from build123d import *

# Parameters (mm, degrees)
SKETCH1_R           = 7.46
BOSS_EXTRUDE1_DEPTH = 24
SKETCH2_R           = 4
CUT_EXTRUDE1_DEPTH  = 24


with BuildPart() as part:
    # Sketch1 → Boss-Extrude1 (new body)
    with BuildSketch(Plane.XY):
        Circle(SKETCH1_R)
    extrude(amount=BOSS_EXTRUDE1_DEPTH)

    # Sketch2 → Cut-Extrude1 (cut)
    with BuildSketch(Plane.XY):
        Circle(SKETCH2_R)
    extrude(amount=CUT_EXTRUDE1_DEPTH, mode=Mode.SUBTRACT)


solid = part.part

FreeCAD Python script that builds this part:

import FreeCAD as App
import Part
import Sketcher

doc = App.newDocument("Part")
params = doc.addObject("Spreadsheet::Sheet", "Params")
for row, (alias, value) in enumerate([
    ("sketch1_diameter", "14.92 mm"),
    ("pad1_length", "24 mm"),
    ("sketch2_diameter", "8 mm"),
    ("pocket1_length", "24 mm"),
], start=1):
    params.set(f"A{row}", alias)
    params.set(f"B{row}", "=" + value)
    params.setAlias(f"B{row}", alias)

body = doc.addObject("PartDesign::Body", "Body")

# Sketch on XY plane
sketch1 = body.newObject("Sketcher::SketchObject", "Sketch")
sketch1.AttachmentSupport = (doc.getObject("XY_Plane"), [""])
sketch1.MapMode = "FlatFace"
sketch1.addGeometry(Part.Circle(App.Vector(0, 0, 0), App.Vector(0, 0, 1), 7), False)
sketch1.addConstraint([
    Sketcher.Constraint("Coincident", 0, 3, -1, 1),
    Sketcher.Constraint("Diameter", 0, 14.92),
])
sketch1.setExpression("Constraints[1]", "Params.sketch1_diameter")
pad1 = body.newObject("PartDesign::Pad", "Pad")
pad1.Profile = sketch1
pad1.setExpression("Length", "Params.pad1_length")

# Sketch on XY plane
sketch2 = body.newObject("Sketcher::SketchObject", "Sketch001")
sketch2.AttachmentSupport = (doc.getObject("XY_Plane"), [""])
sketch2.MapMode = "FlatFace"
sketch2.addGeometry(Part.Circle(App.Vector(0, 0, 0), App.Vector(0, 0, 1), 4), False)
sketch2.addConstraint([
    Sketcher.Constraint("Coincident", 0, 3, -1, 1),
    Sketcher.Constraint("Diameter", 0, 8.0),
])
sketch2.setExpression("Constraints[1]", "Params.sketch2_diameter")
pocket1 = body.newObject("PartDesign::Pocket", "Pocket")
pocket1.Profile = sketch2
pocket1.setExpression("Length", "Params.pocket1_length")
pocket1.Reversed = True

doc.recompute()
